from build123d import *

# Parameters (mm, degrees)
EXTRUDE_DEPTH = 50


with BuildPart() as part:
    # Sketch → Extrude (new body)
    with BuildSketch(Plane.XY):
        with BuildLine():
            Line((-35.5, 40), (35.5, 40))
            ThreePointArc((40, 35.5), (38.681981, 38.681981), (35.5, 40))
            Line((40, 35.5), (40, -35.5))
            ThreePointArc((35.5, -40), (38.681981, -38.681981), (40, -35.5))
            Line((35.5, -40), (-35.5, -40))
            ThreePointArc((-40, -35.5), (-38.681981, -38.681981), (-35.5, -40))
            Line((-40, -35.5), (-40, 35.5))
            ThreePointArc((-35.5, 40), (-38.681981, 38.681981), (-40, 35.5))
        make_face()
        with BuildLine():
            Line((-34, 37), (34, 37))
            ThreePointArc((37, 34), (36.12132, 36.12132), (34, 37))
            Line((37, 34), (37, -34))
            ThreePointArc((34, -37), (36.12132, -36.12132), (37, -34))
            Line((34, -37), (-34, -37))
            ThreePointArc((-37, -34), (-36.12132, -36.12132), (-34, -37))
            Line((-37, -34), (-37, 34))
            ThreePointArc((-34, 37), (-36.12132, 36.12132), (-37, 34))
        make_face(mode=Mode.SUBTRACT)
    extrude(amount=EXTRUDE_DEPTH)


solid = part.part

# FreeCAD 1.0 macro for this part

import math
import FreeCAD as App
import Part
import Sketcher

doc = App.newDocument("Part")
body = doc.addObject("PartDesign::Body", "Body")

# Sketch on XY plane
sketch1 = doc.addObject("Sketcher::SketchObject", "Sketch")
body.addObject(sketch1)
sketch1.AttachmentSupport = (doc.XY_Plane, [""])
sketch1.MapMode = "FlatFace"
sketch1.addGeometry([
    Part.LineSegment(App.Vector(35.5, 40, 0), App.Vector(-35.5, 40, 0)),  # 0
    Part.ArcOfCircle(Part.Circle(App.Vector(-35.5, 35.5, 0), App.Vector(0, 0, 1), 4.5), math.radians(90), math.radians(180)),  # 1
    Part.LineSegment(App.Vector(-40, 35.5, 0), App.Vector(-40, -35.5, 0)),  # 2
    Part.ArcOfCircle(Part.Circle(App.Vector(-35.5, -35.5, 0), App.Vector(0, 0, 1), 4.5), math.radians(180), math.radians(270)),  # 3
    Part.LineSegment(App.Vector(-35.5, -40, 0), App.Vector(35.5, -40, 0)),  # 4
    Part.ArcOfCircle(Part.Circle(App.Vector(35.5, -35.5, 0), App.Vector(0, 0, 1), 4.5), math.radians(-90), math.radians(0)),  # 5
    Part.LineSegment(App.Vector(40, -35.5, 0), App.Vector(40, 35.5, 0)),  # 6
    Part.ArcOfCircle(Part.Circle(App.Vector(35.5, 35.5, 0), App.Vector(0, 0, 1), 4.5), math.radians(0), math.radians(90)),  # 7
    Part.LineSegment(App.Vector(-34, 37, 0), App.Vector(34, 37, 0)),  # 8
    Part.ArcOfCircle(Part.Circle(App.Vector(34, 34, 0), App.Vector(0, 0, 1), 3), math.radians(0), math.radians(90)),  # 9
    Part.LineSegment(App.Vector(37, 34, 0), App.Vector(37, -34, 0)),  # 10
    Part.ArcOfCircle(Part.Circle(App.Vector(34, -34, 0), App.Vector(0, 0, 1), 3), math.radians(-90), math.radians(0)),  # 11
    Part.LineSegment(App.Vector(34, -37, 0), App.Vector(-34, -37, 0)),  # 12
    Part.ArcOfCircle(Part.Circle(App.Vector(-34, -34, 0), App.Vector(0, 0, 1), 3), math.radians(-180), math.radians(-90)),  # 13
    Part.LineSegment(App.Vector(-37, -34, 0), App.Vector(-37, 34, 0)),  # 14
    Part.ArcOfCircle(Part.Circle(App.Vector(-34, 34, 0), App.Vector(0, 0, 1), 3), math.radians(90), math.radians(180)),  # 15
], False)
sketch1.addConstraint([
    Sketcher.Constraint("Tangent", 0, 2, 1, 1),
    Sketcher.Constraint("Tangent", 1, 2, 2, 1),
    Sketcher.Constraint("Tangent", 2, 2, 3, 1),
    Sketcher.Constraint("Tangent", 3, 2, 4, 1),
    Sketcher.Constraint("Tangent", 4, 2, 5, 1),
    Sketcher.Constraint("Tangent", 5, 2, 6, 1),
    Sketcher.Constraint("Tangent", 6, 2, 7, 1),
    Sketcher.Constraint("Tangent", 7, 2, 0, 1),
    Sketcher.Constraint("Tangent", 8, 2, 9, 2),
    Sketcher.Constraint("Tangent", 9, 1, 10, 1),
    Sketcher.Constraint("Tangent", 10, 2, 11, 2),
    Sketcher.Constraint("Tangent", 11, 1, 12, 1),
    Sketcher.Constraint("Tangent", 12, 2, 13, 2),
    Sketcher.Constraint("Tangent", 13, 1, 14, 1),
    Sketcher.Constraint("Tangent", 14, 2, 15, 2),
    Sketcher.Constraint("Tangent", 15, 1, 8, 1),
    Sketcher.Constraint("Horizontal", 0),
    Sketcher.Constraint("Vertical", 2),
    Sketcher.Constraint("Horizontal", 4),
    Sketcher.Constraint("Vertical", 6),
    Sketcher.Constraint("Horizontal", 8),
    Sketcher.Constraint("Vertical", 10),
    Sketcher.Constraint("Horizontal", 12),
    Sketcher.Constraint("Vertical", 14),
    Sketcher.Constraint("Equal", 1, 3),
    Sketcher.Constraint("Equal", 3, 5),
    Sketcher.Constraint("Equal", 5, 7),
    Sketcher.Constraint("Equal", 9, 11),
    Sketcher.Constraint("Equal", 11, 13),
    Sketcher.Constraint("Equal", 13, 15),
    Sketcher.Constraint("Symmetric", 1, 3, 5, 3, -1, 1),
    Sketcher.Constraint("Symmetric", 9, 3, 13, 3, -1, 1),
    Sketcher.Constraint("Equal", 4, 2),
    Sketcher.Constraint("Equal", 12, 10),
    Sketcher.Constraint("Radius", 9, 3.000001),
    Sketcher.Constraint("Radius", 1, 4.499998),
    Sketcher.Constraint("DistanceX", 0, 2, 0, 1, 71.0),
    Sketcher.Constraint("DistanceX", 8, 1, 8, 2, 68.0),
])
pad1 = doc.addObject("PartDesign::Pad", "Pad")
body.addObject(pad1)
pad1.Profile = sketch1
pad1.Length = 50

doc.recompute()
